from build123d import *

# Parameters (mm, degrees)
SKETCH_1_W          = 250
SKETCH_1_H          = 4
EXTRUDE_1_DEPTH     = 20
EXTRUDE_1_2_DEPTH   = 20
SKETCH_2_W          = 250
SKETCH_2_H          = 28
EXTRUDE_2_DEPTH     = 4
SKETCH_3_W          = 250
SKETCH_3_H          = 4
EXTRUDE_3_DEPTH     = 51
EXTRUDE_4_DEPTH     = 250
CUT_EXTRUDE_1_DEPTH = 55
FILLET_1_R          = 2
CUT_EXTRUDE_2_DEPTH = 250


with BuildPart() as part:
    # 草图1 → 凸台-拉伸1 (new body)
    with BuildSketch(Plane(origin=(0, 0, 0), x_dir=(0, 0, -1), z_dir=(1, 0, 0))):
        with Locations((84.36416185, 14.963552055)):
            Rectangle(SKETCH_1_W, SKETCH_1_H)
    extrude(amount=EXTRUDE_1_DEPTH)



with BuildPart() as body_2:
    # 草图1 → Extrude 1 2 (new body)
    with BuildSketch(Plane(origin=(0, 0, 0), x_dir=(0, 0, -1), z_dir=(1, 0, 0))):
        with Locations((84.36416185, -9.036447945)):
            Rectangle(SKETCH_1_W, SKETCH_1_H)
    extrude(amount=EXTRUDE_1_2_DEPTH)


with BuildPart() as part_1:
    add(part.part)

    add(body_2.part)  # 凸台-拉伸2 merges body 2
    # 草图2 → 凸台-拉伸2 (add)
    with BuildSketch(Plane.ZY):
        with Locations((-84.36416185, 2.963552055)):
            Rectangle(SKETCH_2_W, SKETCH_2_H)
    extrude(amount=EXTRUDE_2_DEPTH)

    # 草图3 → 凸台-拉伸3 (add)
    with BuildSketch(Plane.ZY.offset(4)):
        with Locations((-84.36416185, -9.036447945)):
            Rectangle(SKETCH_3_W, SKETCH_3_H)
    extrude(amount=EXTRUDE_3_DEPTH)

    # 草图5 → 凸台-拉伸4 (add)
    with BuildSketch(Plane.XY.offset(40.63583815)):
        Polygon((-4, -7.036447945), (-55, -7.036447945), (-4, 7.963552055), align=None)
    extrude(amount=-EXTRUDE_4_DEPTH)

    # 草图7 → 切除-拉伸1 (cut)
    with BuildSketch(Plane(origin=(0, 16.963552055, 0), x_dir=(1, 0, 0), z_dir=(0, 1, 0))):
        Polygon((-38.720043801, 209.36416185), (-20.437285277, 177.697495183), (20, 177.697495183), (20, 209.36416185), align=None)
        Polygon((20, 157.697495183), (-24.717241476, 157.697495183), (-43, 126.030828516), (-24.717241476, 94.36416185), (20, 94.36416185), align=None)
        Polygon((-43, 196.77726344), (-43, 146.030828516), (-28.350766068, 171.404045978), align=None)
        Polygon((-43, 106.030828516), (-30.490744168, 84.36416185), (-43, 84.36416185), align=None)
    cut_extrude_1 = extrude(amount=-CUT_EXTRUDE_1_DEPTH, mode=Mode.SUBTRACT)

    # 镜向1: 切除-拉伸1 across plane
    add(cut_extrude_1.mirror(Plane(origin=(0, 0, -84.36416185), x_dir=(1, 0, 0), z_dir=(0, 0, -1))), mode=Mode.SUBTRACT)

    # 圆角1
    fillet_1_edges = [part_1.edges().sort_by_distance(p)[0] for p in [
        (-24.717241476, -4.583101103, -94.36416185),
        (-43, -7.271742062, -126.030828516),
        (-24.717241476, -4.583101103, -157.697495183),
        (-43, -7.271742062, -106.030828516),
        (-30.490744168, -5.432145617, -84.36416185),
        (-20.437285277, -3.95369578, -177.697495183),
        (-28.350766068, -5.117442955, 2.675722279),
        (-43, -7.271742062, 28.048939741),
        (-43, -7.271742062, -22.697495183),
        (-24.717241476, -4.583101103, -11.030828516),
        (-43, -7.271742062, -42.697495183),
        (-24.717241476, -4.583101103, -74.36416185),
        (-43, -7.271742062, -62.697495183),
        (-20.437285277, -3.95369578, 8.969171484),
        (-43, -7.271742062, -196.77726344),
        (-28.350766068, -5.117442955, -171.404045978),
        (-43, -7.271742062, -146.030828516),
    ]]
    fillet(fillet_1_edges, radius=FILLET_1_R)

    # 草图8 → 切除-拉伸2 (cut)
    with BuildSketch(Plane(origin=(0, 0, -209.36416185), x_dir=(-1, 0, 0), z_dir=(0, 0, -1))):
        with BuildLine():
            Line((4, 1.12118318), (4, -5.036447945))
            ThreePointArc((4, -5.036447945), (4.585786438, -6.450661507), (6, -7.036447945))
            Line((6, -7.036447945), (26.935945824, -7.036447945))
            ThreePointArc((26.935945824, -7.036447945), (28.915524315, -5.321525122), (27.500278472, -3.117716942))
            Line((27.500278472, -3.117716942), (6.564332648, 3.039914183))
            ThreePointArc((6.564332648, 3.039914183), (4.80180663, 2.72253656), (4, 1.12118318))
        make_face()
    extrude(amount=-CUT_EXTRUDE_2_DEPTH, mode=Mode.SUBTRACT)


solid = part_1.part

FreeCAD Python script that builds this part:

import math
import FreeCAD as App
import Part
import Sketcher
Q = App.Units.Quantity


def edges_at(feature, points):
    """Names of the edges that pass closest to the given points."""
    edges = feature.Shape.Edges
    near = lambda p: min(range(len(edges)), key=lambda i: edges[i].distToShape(Part.Vertex(*p))[0])
    return sorted({f"Edge{near(p) + 1}" for p in points})

doc = App.newDocument("Part")
body = doc.addObject("PartDesign::Body", "Body")

sketch1 = body.newObject("Sketcher::SketchObject", "Sketch")
sketch1.AttachmentSupport = (doc.getObject("YZ_Plane"), [""])
sketch1.MapMode = "FlatFace"
sketch1.addGeometry(Part.LineSegment(App.Vector(17, 40.6, 0), App.Vector(13, 40.6, 0)), False)
sketch1.addGeometry(Part.LineSegment(App.Vector(13, 40.6, 0), App.Vector(13, -209.4, 0)), False)
sketch1.addGeometry(Part.LineSegment(App.Vector(13, -209.4, 0), App.Vector(17, -209.4, 0)), False)
sketch1.addGeometry(Part.LineSegment(App.Vector(17, -209.4, 0), App.Vector(17, 40.6, 0)), False)
sketch1.addConstraint(Sketcher.Constraint("Coincident", 0, 2, 1, 1))
sketch1.addConstraint(Sketcher.Constraint("Coincident", 1, 2, 2, 1))
sketch1.addConstraint(Sketcher.Constraint("Coincident", 2, 2, 3, 1))
sketch1.addConstraint(Sketcher.Constraint("Coincident", 3, 2, 0, 1))
sketch1.addConstraint(Sketcher.Constraint("Horizontal", 0))
sketch1.addConstraint(Sketcher.Constraint("Vertical", 1))
sketch1.addConstraint(Sketcher.Constraint("Horizontal", 2))
sketch1.addConstraint(Sketcher.Constraint("Vertical", 3))
sketch1.addConstraint(Sketcher.Constraint("DistanceX", 0, 2, 0, 1, 4.0))
sketch1.addConstraint(Sketcher.Constraint("DistanceY", 1, 2, 1, 1, 250.0))
sketch1.addConstraint(Sketcher.Constraint("DistanceY", -1, 1, 0, 2, 40.635838))
sketch1.addConstraint(Sketcher.Constraint("DistanceX", -1, 1, 0, 2, 12.963552))
pad1 = body.newObject("PartDesign::Pad", "Pad")
pad1.Profile = sketch1
pad1.Length = 20
body2 = doc.addObject("PartDesign::Body", "Body001")

sketch2 = body2.newObject("Sketcher::SketchObject", "Sketch001")
sketch2.AttachmentSupport = (doc.getObject("YZ_Plane001"), [""])
sketch2.MapMode = "FlatFace"
sketch2.addGeometry(Part.LineSegment(App.Vector(-7, 40.6, 0), App.Vector(-11, 40.6, 0)), False)
sketch2.addGeometry(Part.LineSegment(App.Vector(-11, 40.6, 0), App.Vector(-11, -209.4, 0)), False)
sketch2.addGeometry(Part.LineSegment(App.Vector(-11, -209.4, 0), App.Vector(-7, -209.4, 0)), False)
sketch2.addGeometry(Part.LineSegment(App.Vector(-7, -209.4, 0), App.Vector(-7, 40.6, 0)), False)
sketch2.addConstraint(Sketcher.Constraint("Coincident", 0, 2, 1, 1))
sketch2.addConstraint(Sketcher.Constraint("Coincident", 1, 2, 2, 1))
sketch2.addConstraint(Sketcher.Constraint("Coincident", 2, 2, 3, 1))
sketch2.addConstraint(Sketcher.Constraint("Coincident", 3, 2, 0, 1))
sketch2.addConstraint(Sketcher.Constraint("Horizontal", 0))
sketch2.addConstraint(Sketcher.Constraint("Vertical", 1))
sketch2.addConstraint(Sketcher.Constraint("Horizontal", 2))
sketch2.addConstraint(Sketcher.Constraint("Vertical", 3))
sketch2.addConstraint(Sketcher.Constraint("DistanceX", 0, 2, 0, 1, 4.0))
sketch2.addConstraint(Sketcher.Constraint("DistanceY", 1, 2, 1, 1, 250.0))
sketch2.addConstraint(Sketcher.Constraint("DistanceY", -1, 1, 0, 2, 40.635838))
sketch2.addConstraint(Sketcher.Constraint("DistanceX", 0, 2, -1, 1, 11.036448))
pad2 = body2.newObject("PartDesign::Pad", "Pad001")
pad2.Profile = sketch2
pad2.Length = 20
body.AllowCompound = True
doc.recompute()

boolean = body.newObject("PartDesign::Boolean", "Boolean")
boolean.Type = "Fuse"
boolean.addObjects([body2])

sketch3 = body.newObject("Sketcher::SketchObject", "Sketch002")
sketch3.AttachmentSupport = (doc.getObject("YZ_Plane"), [""])
sketch3.MapMode = "FlatFace"
sketch3.addGeometry(Part.LineSegment(App.Vector(17, -209, 0), App.Vector(-11, -209, 0)), False)
sketch3.addGeometry(Part.LineSegment(App.Vector(-11, -209, 0), App.Vector(-11, 41, 0)), False)
sketch3.addGeometry(Part.LineSegment(App.Vector(-11, 41, 0), App.Vector(17, 41, 0)), False)
sketch3.addGeometry(Part.LineSegment(App.Vector(17, 41, 0), App.Vector(17, -209, 0)), False)
sketch3.addConstraint(Sketcher.Constraint("Coincident", 0, 2, 1, 1))
sketch3.addConstraint(Sketcher.Constraint("Coincident", 1, 2, 2, 1))
sketch3.addConstraint(Sketcher.Constraint("Coincident", 2, 2, 3, 1))
sketch3.addConstraint(Sketcher.Constraint("Coincident", 3, 2, 0, 1))
sketch3.addConstraint(Sketcher.Constraint("Horizontal", 0))
sketch3.addConstraint(Sketcher.Constraint("Vertical", 1))
sketch3.addConstraint(Sketcher.Constraint("Horizontal", 2))
sketch3.addConstraint(Sketcher.Constraint("Vertical", 3))
sketch3.addConstraint(Sketcher.Constraint("DistanceX", 0, 2, 0, 1, 28.0))
sketch3.addConstraint(Sketcher.Constraint("DistanceY", 1, 1, 1, 2, 250.0))
sketch3.addConstraint(Sketcher.Constraint("DistanceY", 0, 2, -1, 1, 209.364162))
sketch3.addConstraint(Sketcher.Constraint("DistanceX", 0, 2, -1, 1, 11.036448))
pad3 = body.newObject("PartDesign::Pad", "Pad002")
pad3.Profile = sketch3
pad3.Length = 4
pad3.Reversed = True

sketch4 = body.newObject("Sketcher::SketchObject", "Sketch003")
sketch4.AttachmentSupport = (doc.getObject("YZ_Plane"), [""])
sketch4.MapMode = "FlatFace"
sketch4.AttachmentOffset = App.Placement(App.Vector(0, 0, -4), App.Rotation())
sketch4.addGeometry(Part.LineSegment(App.Vector(-7, -209.4, 0), App.Vector(-11, -209.4, 0)), False)
sketch4.addGeometry(Part.LineSegment(App.Vector(-11, -209.4, 0), App.Vector(-11, 40.6, 0)), False)
sketch4.addGeometry(Part.LineSegment(App.Vector(-11, 40.6, 0), App.Vector(-7, 40.6, 0)), False)
sketch4.addGeometry(Part.LineSegment(App.Vector(-7, 40.6, 0), App.Vector(-7, -209.4, 0)), False)
sketch4.addConstraint(Sketcher.Constraint("Coincident", 0, 2, 1, 1))
sketch4.addConstraint(Sketcher.Constraint("Coincident", 1, 2, 2, 1))
sketch4.addConstraint(Sketcher.Constraint("Coincident", 2, 2, 3, 1))
sketch4.addConstraint(Sketcher.Constraint("Coincident", 3, 2, 0, 1))
sketch4.addConstraint(Sketcher.Constraint("Horizontal", 0))
sketch4.addConstraint(Sketcher.Constraint("Vertical", 1))
sketch4.addConstraint(Sketcher.Constraint("Horizontal", 2))
sketch4.addConstraint(Sketcher.Constraint("Vertical", 3))
sketch4.addConstraint(Sketcher.Constraint("DistanceX", 0, 2, 0, 1, 4.0))
sketch4.addConstraint(Sketcher.Constraint("DistanceY", 1, 1, 1, 2, 250.0))
sketch4.addConstraint(Sketcher.Constraint("DistanceY", 0, 2, -1, 1, 209.364162))
sketch4.addConstraint(Sketcher.Constraint("DistanceX", 0, 2, -1, 1, 11.036448))
pad4 = body.newObject("PartDesign::Pad", "Pad003")
pad4.Profile = sketch4
pad4.Length = 51
pad4.Reversed = True

sketch5 = body.newObject("Sketcher::SketchObject", "Sketch004")
sketch5.AttachmentSupport = (doc.getObject("XY_Plane"), [""])
sketch5.MapMode = "FlatFace"
sketch5.AttachmentOffset = App.Placement(App.Vector(0, 0, 40.635838), App.Rotation())
sketch5.addGeometry(Part.LineSegment(App.Vector(-55, -7, 0), App.Vector(-4, -7, 0)), False)
sketch5.addGeometry(Part.LineSegment(App.Vector(-4, -7, 0), App.Vector(-4, 8, 0)), False)
sketch5.addGeometry(Part.LineSegment(App.Vector(-4, 8, 0), App.Vector(-55, -7, 0)), False)
sketch5.addConstraint(Sketcher.Constraint("Coincident", 0, 2, 1, 1))
sketch5.addConstraint(Sketcher.Constraint("Coincident", 1, 2, 2, 1))
sketch5.addConstraint(Sketcher.Constraint("Coincident", 2, 2, 0, 1))
sketch5.addConstraint(Sketcher.Constraint("Horizontal", 0))
sketch5.addConstraint(Sketcher.Constraint("Vertical", 1))
sketch5.addConstraint(Sketcher.Constraint("DistanceX", 0, 1, 0, 2, 51.0))
sketch5.addConstraint(Sketcher.Constraint("DistanceY", 1, 1, 1, 2, 15.0))
sketch5.addConstraint(Sketcher.Constraint("DistanceX", 0, 2, -1, 1, 4.0))
sketch5.addConstraint(Sketcher.Constraint("DistanceY", 0, 2, -1, 1, 7.036448))
pad5 = body.newObject("PartDesign::Pad", "Pad004")
pad5.Profile = sketch5
pad5.Length = 250
pad5.Reversed = True

sketch6 = body.newObject("Sketcher::SketchObject", "Sketch005")
sketch6.AttachmentSupport = (doc.getObject("XZ_Plane"), [""])
sketch6.MapMode = "FlatFace"
sketch6.AttachmentOffset = App.Placement(App.Vector(0, 0, -16.963552), App.Rotation())
sketch6.addGeometry(Part.LineSegment(App.Vector(-39, -209, 0), App.Vector(-20, -178, 0)), False)
sketch6.addGeometry(Part.LineSegment(App.Vector(-20, -178, 0), App.Vector(20, -178, 0)), False)
sketch6.addGeometry(Part.LineSegment(App.Vector(20, -178, 0), App.Vector(20, -209, 0)), False)
sketch6.addGeometry(Part.LineSegment(App.Vector(20, -209, 0), App.Vector(-39, -209, 0)), False)
sketch6.addGeometry(Part.LineSegment(App.Vector(20, -158, 0), App.Vector(-25, -158, 0)), False)
sketch6.addGeometry(Part.LineSegment(App.Vector(-25, -158, 0), App.Vector(-43, -126, 0)), False)
sketch6.addGeometry(Part.LineSegment(App.Vector(-43, -126, 0), App.Vector(-25, -94, 0)), False)
sketch6.addGeometry(Part.LineSegment(App.Vector(-25, -94, 0), App.Vector(20, -94, 0)), False)
sketch6.addGeometry(Part.LineSegment(App.Vector(20, -94, 0), App.Vector(20, -158, 0)), False)
sketch6.addGeometry(Part.LineSegment(App.Vector(-43, -197, 0), App.Vector(-43, -146, 0)), False)
sketch6.addGeometry(Part.LineSegment(App.Vector(-43, -146, 0), App.Vector(-28, -171, 0)), False)
sketch6.addGeometry(Part.LineSegment(App.Vector(-28, -171, 0), App.Vector(-43, -197, 0)), False)
sketch6.addGeometry(Part.LineSegment(App.Vector(-30, -84, 0), App.Vector(-43, -106, 0)), False)
sketch6.addGeometry(Part.LineSegment(App.Vector(-43, -106, 0), App.Vector(-43, -84, 0)), False)
sketch6.addGeometry(Part.LineSegment(App.Vector(-43, -84, 0), App.Vector(-30, -84, 0)), False)
sketch6.addConstraint(Sketcher.Constraint("Coincident", 0, 2, 1, 1))
sketch6.addConstraint(Sketcher.Constraint("Coincident", 1, 2, 2, 1))
sketch6.addConstraint(Sketcher.Constraint("Coincident", 2, 2, 3, 1))
sketch6.addConstraint(Sketcher.Constraint("Coincident", 3, 2, 0, 1))
sketch6.addConstraint(Sketcher.Constraint("Coincident", 4, 2, 5, 1))
sketch6.addConstraint(Sketcher.Constraint("Coincident", 5, 2, 6, 1))
sketch6.addConstraint(Sketcher.Constraint("Coincident", 6, 2, 7, 1))
sketch6.addConstraint(Sketcher.Constraint("Coincident", 7, 2, 8, 1))
sketch6.addConstraint(Sketcher.Constraint("Coincident", 8, 2, 4, 1))
sketch6.addConstraint(Sketcher.Constraint("Coincident", 9, 2, 10, 1))
sketch6.addConstraint(Sketcher.Constraint("Coincident", 10, 2, 11, 1))
sketch6.addConstraint(Sketcher.Constraint("Coincident", 11, 2, 9, 1))
sketch6.addConstraint(Sketcher.Constraint("Coincident", 12, 2, 13, 1))
sketch6.addConstraint(Sketcher.Constraint("Coincident", 13, 2, 14, 1))
sketch6.addConstraint(Sketcher.Constraint("Coincident", 14, 2, 12, 1))
sketch6.addConstraint(Sketcher.Constraint("Horizontal", 1))
sketch6.addConstraint(Sketcher.Constraint("Vertical", 2))
sketch6.addConstraint(Sketcher.Constraint("Horizontal", 3))
sketch6.addConstraint(Sketcher.Constraint("Horizontal", 4))
sketch6.addConstraint(Sketcher.Constraint("Horizontal", 7))
sketch6.addConstraint(Sketcher.Constraint("Vertical", 8))
sketch6.addConstraint(Sketcher.Constraint("Vertical", 9))
sketch6.addConstraint(Sketcher.Constraint("Vertical", 13))
sketch6.addConstraint(Sketcher.Constraint("Horizontal", 14))
sketch6.addConstraint(Sketcher.Constraint("Parallel", 0, 6))
sketch6.addConstraint(Sketcher.Constraint("Parallel", 5, 10))
sketch6.addConstraint(Sketcher.Constraint("Parallel", 6, 11))
sketch6.addConstraint(Sketcher.Constraint("Parallel", 11, 12))
sketch6.addConstraint(Sketcher.Constraint("Vertical", 4, 2, 6, 2))
sketch6.addConstraint(Sketcher.Constraint("Vertical", 2, 2, 7, 2))
sketch6.addConstraint(Sketcher.Constraint("Vertical", 5, 2, 9, 2))
sketch6.addConstraint(Sketcher.Constraint("Vertical", 11, 2, 12, 2))
sketch6.addConstraint(Sketcher.Constraint("Equal", 0, 5))
sketch6.addConstraint(Sketcher.Constraint("Equal", 5, 6))
sketch6.addConstraint(Sketcher.Constraint("Angle", 0, Q("60 deg")))
sketch6.addConstraint(Sketcher.Constraint("DistanceX", -1, 1, 1, 2, 20.0))
sketch6.addConstraint(Sketcher.Constraint("DistanceX", 5, 2, -1, 1, 43.0))
sketch6.addConstraint(Sketcher.Constraint("DistanceY", 0, 2, 4, 2, 20.0))
sketch6.addConstraint(Sketcher.Constraint("DistanceY", 3, 2, 6, 2, 115.0))
sketch6.addConstraint(Sketcher.Constraint("DistanceY", 9, 2, 5, 2, 20.0))
sketch6.addConstraint(Sketcher.Constraint("DistanceY", 5, 2, 12, 2, 20.0))
sketch6.addConstraint(Sketcher.Constraint("DistanceY", 6, 2, 13, 2, 10.0))
sketch6.addConstraint(Sketcher.Constraint("DistanceY", 3, 2, 11, 2, 12.586898))
sketch6.addConstraint(Sketcher.Constraint("DistanceX", 1, 1, 1, 2, 40.437285))
sketch6.addConstraint(Sketcher.Constraint("DistanceY", 2, 2, -1, 1, 209.364162))
pocket1 = body.newObject("PartDesign::Pocket", "Pocket")
pocket1.Profile = sketch6
pocket1.Length = 55
pocket1.Reversed = True
doc.recompute()

datumplane = body.newObject("PartDesign::Plane", "DatumPlane")
datumplane.AttachmentSupport = (doc.getObject("XY_Plane"), [""])
datumplane.MapMode = "FlatFace"
datumplane.AttachmentOffset = App.Placement(App.Vector(0, 0, -84.364162), App.Rotation())
mirrored = body.newObject("PartDesign::Mirrored", "Mirrored")
mirrored.Originals = [pocket1]
mirrored.MirrorPlane = (datumplane, [""])
body.Tip = mirrored
doc.recompute()

fillet = body.newObject("PartDesign::Fillet", "Fillet")
fillet.Base = (mirrored, edges_at(mirrored, [
    (-24.717, -4.583, -94.364),
    (-43, -7.272, -126.031),
    (-24.717, -4.583, -157.697),
    (-43, -7.272, -106.031),
    (-30.491, -5.432, -84.364),
    (-20.437, -3.954, -177.697),
    (-28.351, -5.117, 2.676),
    (-43, -7.272, 28.049),
    (-43, -7.272, -22.697),
    (-24.717, -4.583, -11.031),
    (-43, -7.272, -42.697),
    (-24.717, -4.583, -74.364),
    (-43, -7.272, -62.697),
    (-20.437, -3.954, 8.969),
    (-43, -7.272, -196.777),
    (-28.351, -5.117, -171.404),
    (-43, -7.272, -146.031),
]))
fillet.Radius = 2

sketch7 = body.newObject("Sketcher::SketchObject", "Sketch006")
sketch7.AttachmentSupport = (doc.getObject("XY_Plane"), [""])
sketch7.MapMode = "FlatFace"
sketch7.AttachmentOffset = App.Placement(App.Vector(0, 0, -209.364162), App.Rotation())
sketch7.addGeometry(Part.LineSegment(App.Vector(-4, 1.1, 0), App.Vector(-4, -5, 0)), False)
sketch7.addGeometry(Part.ArcOfCircle(Part.Circle(App.Vector(-6, -5, 0), App.Vector(0, 0, 1), 2), math.radians(-90), math.radians(0)), False)
sketch7.addGeometry(Part.LineSegment(App.Vector(-6, -7, 0), App.Vector(-26.9, -7, 0)), False)
sketch7.addGeometry(Part.ArcOfCircle(Part.Circle(App.Vector(-26.9, -5, 0), App.Vector(0, 0, 1), 2), math.radians(106), math.radians(270)), False)
sketch7.addGeometry(Part.LineSegment(App.Vector(-27.5, -3.1, 0), App.Vector(-6.6, 3, 0)), False)
sketch7.addGeometry(Part.ArcOfCircle(Part.Circle(App.Vector(-6, 1.1, 0), App.Vector(0, 0, 1), 2), math.radians(0), math.radians(106)), False)
sketch7.addConstraint(Sketcher.Constraint("Tangent", 0, 2, 1, 2))
sketch7.addConstraint(Sketcher.Constraint("Tangent", 1, 1, 2, 1))
sketch7.addConstraint(Sketcher.Constraint("Tangent", 2, 2, 3, 2))
sketch7.addConstraint(Sketcher.Constraint("Tangent", 3, 1, 4, 1))
sketch7.addConstraint(Sketcher.Constraint("Tangent", 4, 2, 5, 2))
sketch7.addConstraint(Sketcher.Constraint("Tangent", 5, 1, 0, 1))
sketch7.addConstraint(Sketcher.Constraint("Vertical", 0))
sketch7.addConstraint(Sketcher.Constraint("Horizontal", 2))
sketch7.addConstraint(Sketcher.Constraint("Equal", 1, 3))
sketch7.addConstraint(Sketcher.Constraint("Equal", 3, 5))
sketch7.addConstraint(Sketcher.Constraint("Radius", 1, 2.0))
sketch7.addConstraint(Sketcher.Constraint("DistanceX", 1, 3, -1, 1, 6.0))
sketch7.addConstraint(Sketcher.Constraint("Distance", 4, 21.8227))
sketch7.addConstraint(Sketcher.Constraint("DistanceY", 0, 2, 0, 1, 6.157631))
sketch7.addConstraint(Sketcher.Constraint("DistanceY", 1, 3, -1, 1, 5.036448))
pocket2 = body.newObject("PartDesign::Pocket", "Pocket001")
pocket2.Profile = sketch7
pocket2.Length = 250
pocket2.Reversed = True

doc.recompute()
